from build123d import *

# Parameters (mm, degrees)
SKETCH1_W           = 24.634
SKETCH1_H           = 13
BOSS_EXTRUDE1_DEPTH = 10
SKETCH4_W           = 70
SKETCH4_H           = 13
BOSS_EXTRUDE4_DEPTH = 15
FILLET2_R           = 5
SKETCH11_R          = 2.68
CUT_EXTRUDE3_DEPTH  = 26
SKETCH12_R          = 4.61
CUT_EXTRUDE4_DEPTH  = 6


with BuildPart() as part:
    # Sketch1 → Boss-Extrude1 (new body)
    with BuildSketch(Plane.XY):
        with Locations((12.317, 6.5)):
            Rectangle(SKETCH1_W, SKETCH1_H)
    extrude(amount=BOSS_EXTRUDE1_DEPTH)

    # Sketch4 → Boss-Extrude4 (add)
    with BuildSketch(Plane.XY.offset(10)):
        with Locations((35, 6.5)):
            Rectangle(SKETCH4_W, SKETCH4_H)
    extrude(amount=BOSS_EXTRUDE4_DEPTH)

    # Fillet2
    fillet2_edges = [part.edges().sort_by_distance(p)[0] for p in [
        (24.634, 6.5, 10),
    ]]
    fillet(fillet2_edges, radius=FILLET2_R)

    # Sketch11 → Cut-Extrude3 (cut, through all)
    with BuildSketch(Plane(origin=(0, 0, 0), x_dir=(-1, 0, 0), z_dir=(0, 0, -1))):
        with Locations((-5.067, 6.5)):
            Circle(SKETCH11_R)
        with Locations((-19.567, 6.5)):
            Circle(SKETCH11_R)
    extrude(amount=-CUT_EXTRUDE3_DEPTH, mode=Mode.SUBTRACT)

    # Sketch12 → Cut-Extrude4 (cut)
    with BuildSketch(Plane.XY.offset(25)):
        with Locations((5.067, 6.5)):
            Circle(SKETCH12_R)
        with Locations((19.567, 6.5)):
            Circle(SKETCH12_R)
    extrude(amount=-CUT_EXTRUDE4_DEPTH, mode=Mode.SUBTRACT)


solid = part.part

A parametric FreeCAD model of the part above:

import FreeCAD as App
import Part
import Sketcher


def edges_at(feature, points):
    """Names of the edges that pass closest to the given points."""
    edges = feature.Shape.Edges
    near = lambda p: min(range(len(edges)), key=lambda i: edges[i].distToShape(Part.Vertex(*p))[0])
    return sorted({f"Edge{near(p) + 1}" for p in points})


def add_polygon(sketch, points):
    """Adds a closed chain of lines whose ends are joined by coincident constraints."""
    first, n = sketch.GeometryCount, len(points)
    for a, b in zip(points, points[1:] + points[:1]):
        sketch.addGeometry(Part.LineSegment(App.Vector(*a, 0), App.Vector(*b, 0)), False)
    for i in range(n):
        sketch.addConstraint(Sketcher.Constraint("Coincident", first + i, 2, first + (i + 1) % n, 1))

doc = App.newDocument("Part")
body = doc.addObject("PartDesign::Body", "Body")

sketch1 = body.newObject("Sketcher::SketchObject", "Sketch")
sketch1.AttachmentSupport = (doc.getObject("XY_Plane"), [""])
sketch1.MapMode = "FlatFace"
add_polygon(sketch1, [(0, 13), (0, 0), (24.634, 0), (24.634, 13)])
sketch1.addConstraint(Sketcher.Constraint("Vertical", 0))
sketch1.addConstraint(Sketcher.Constraint("Horizontal", 1))
sketch1.addConstraint(Sketcher.Constraint("Vertical", 2))
sketch1.addConstraint(Sketcher.Constraint("Horizontal", 3))
sketch1.addConstraint(Sketcher.Constraint("Coincident", 0, 2, -1, 1))
sketch1.addConstraint(Sketcher.Constraint("DistanceY", 0, 2, 0, 1, 13.0))
sketch1.addConstraint(Sketcher.Constraint("DistanceX", 1, 1, 1, 2, 24.634))
pad1 = body.newObject("PartDesign::Pad", "Pad")
pad1.Profile = sketch1
pad1.Length = 10

sketch2 = body.newObject("Sketcher::SketchObject", "Sketch001")
sketch2.AttachmentSupport = (doc.getObject("XY_Plane"), [""])
sketch2.MapMode = "FlatFace"
sketch2.AttachmentOffset = App.Placement(App.Vector(0, 0, 10), App.Rotation())
add_polygon(sketch2, [(0, 13), (0, 0), (70, 0), (70, 13)])
sketch2.addConstraint(Sketcher.Constraint("Vertical", 0))
sketch2.addConstraint(Sketcher.Constraint("Horizontal", 1))
sketch2.addConstraint(Sketcher.Constraint("Vertical", 2))
sketch2.addConstraint(Sketcher.Constraint("Horizontal", 3))
sketch2.addConstraint(Sketcher.Constraint("Coincident", 0, 2, -1, 1))
sketch2.addConstraint(Sketcher.Constraint("DistanceX", 1, 1, 1, 2, 70.0))
sketch2.addConstraint(Sketcher.Constraint("DistanceY", 0, 2, 0, 1, 13.0))
pad2 = body.newObject("PartDesign::Pad", "Pad001")
pad2.Profile = sketch2
pad2.Length = 15
doc.recompute()

fillet = body.newObject("PartDesign::Fillet", "Fillet")
fillet.Base = (pad2, edges_at(pad2, [(24.634, 6.5, 10)]))
fillet.Radius = 5

sketch3 = body.newObject("Sketcher::SketchObject", "Sketch002")
sketch3.AttachmentSupport = (doc.getObject("XY_Plane"), [""])
sketch3.MapMode = "FlatFace"
sketch3.addGeometry(Part.Circle(App.Vector(5.067, 6.5, 0), App.Vector(0, 0, 1), 2.68), False)
sketch3.addGeometry(Part.Circle(App.Vector(19.567, 6.5, 0), App.Vector(0, 0, 1), 2.68), False)
sketch3.addConstraint(Sketcher.Constraint("Equal", 0, 1))
sketch3.addConstraint(Sketcher.Constraint("Horizontal", 0, 3, 1, 3))
sketch3.addConstraint(Sketcher.Constraint("Diameter", 0, 5.36))
sketch3.addConstraint(Sketcher.Constraint("DistanceY", -1, 1, 0, 3, 6.5))
sketch3.addConstraint(Sketcher.Constraint("DistanceX", 0, 3, 1, 3, 14.5))
sketch3.addConstraint(Sketcher.Constraint("DistanceX", -1, 1, 0, 3, 5.067))
pocket1 = body.newObject("PartDesign::Pocket", "Pocket")
pocket1.Profile = sketch3
pocket1.Type = "ThroughAll"
pocket1.Reversed = True

sketch4 = body.newObject("Sketcher::SketchObject", "Sketch003")
sketch4.AttachmentSupport = (doc.getObject("XY_Plane"), [""])
sketch4.MapMode = "FlatFace"
sketch4.AttachmentOffset = App.Placement(App.Vector(0, 0, 25), App.Rotation())
sketch4.addGeometry(Part.Circle(App.Vector(5.067, 6.5, 0), App.Vector(0, 0, 1), 4.61), False)
sketch4.addGeometry(Part.Circle(App.Vector(19.567, 6.5, 0), App.Vector(0, 0, 1), 4.61), False)
sketch4.addConstraint(Sketcher.Constraint("Equal", 0, 1))
sketch4.addConstraint(Sketcher.Constraint("Horizontal", 0, 3, 1, 3))
sketch4.addConstraint(Sketcher.Constraint("Diameter", 0, 9.22))
sketch4.addConstraint(Sketcher.Constraint("DistanceY", -1, 1, 0, 3, 6.5))
sketch4.addConstraint(Sketcher.Constraint("DistanceX", 0, 3, 1, 3, 14.5))
sketch4.addConstraint(Sketcher.Constraint("DistanceX", -1, 1, 0, 3, 5.067))
pocket2 = body.newObject("PartDesign::Pocket", "Pocket001")
pocket2.Profile = sketch4
pocket2.Length = 6

doc.recompute()
